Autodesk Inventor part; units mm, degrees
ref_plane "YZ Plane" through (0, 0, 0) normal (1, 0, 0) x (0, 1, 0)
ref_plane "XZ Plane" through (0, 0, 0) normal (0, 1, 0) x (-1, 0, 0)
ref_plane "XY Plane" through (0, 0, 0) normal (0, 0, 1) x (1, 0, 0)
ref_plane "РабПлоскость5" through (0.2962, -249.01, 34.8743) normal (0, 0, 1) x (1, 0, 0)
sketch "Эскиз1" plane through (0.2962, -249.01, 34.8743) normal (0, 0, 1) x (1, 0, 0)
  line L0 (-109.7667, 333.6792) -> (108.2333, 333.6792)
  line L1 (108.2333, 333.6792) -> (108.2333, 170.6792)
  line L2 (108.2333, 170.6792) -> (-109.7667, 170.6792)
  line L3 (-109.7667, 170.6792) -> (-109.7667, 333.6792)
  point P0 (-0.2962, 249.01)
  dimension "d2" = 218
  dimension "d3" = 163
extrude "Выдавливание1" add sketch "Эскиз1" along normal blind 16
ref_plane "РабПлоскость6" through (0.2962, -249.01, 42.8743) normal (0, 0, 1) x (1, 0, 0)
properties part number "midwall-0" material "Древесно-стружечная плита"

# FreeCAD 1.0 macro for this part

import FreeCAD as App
import Part
import Sketcher

V = App.Vector

doc = App.newDocument("Part")
params = doc.addObject("Spreadsheet::Sheet", "Params")
for row, (alias, value) in enumerate([
    ("sketch1_width", "218 mm"),
    ("sketch1_height", "163 mm"),
    ("pad1_length", "16 mm"),
], start=1):
    params.set(f"A{row}", alias)
    params.set(f"B{row}", "=" + value)
    params.setAlias(f"B{row}", alias)

body = doc.addObject("PartDesign::Body", "Body")

# Sketch on XY plane
sketch1 = body.newObject("Sketcher::SketchObject", "Sketch")
sketch1.AttachmentSupport = (doc.getObject("XY_Plane"), [""])
sketch1.MapMode = "FlatFace"
sketch1.AttachmentOffset = App.Placement(V(0, 0, 34.8743), App.Rotation())
sketch1.addGeometry([
    Part.LineSegment(V(108.5295, 84.6692, 0), V(-109.4705, 84.6692, 0)),
    Part.LineSegment(V(-109.4705, 84.6692, 0), V(-109.4705, -78.3308, 0)),
    Part.LineSegment(V(-109.4705, -78.3308, 0), V(108.5295, -78.3308, 0)),
    Part.LineSegment(V(108.5295, -78.3308, 0), V(108.5295, 84.6692, 0)),
], False)
sketch1.addConstraint([
    Sketcher.Constraint("Coincident", 0, 2, 1, 1),
    Sketcher.Constraint("Coincident", 1, 2, 2, 1),
    Sketcher.Constraint("Coincident", 2, 2, 3, 1),
    Sketcher.Constraint("Coincident", 3, 2, 0, 1),
    Sketcher.Constraint("Horizontal", 0),
    Sketcher.Constraint("Vertical", 1),
    Sketcher.Constraint("Horizontal", 2),
    Sketcher.Constraint("Vertical", 3),
    Sketcher.Constraint("DistanceX", 0, 2, 0, 1, 218.0),
    Sketcher.Constraint("DistanceY", 1, 2, 1, 1, 163.0),
    Sketcher.Constraint("DistanceX", 0, 2, -1, 1, 109.4705),
    Sketcher.Constraint("DistanceY", -1, 1, 0, 2, 84.6692),
])
sketch1.setExpression("Constraints[8]", "Params.sketch1_width")
sketch1.setExpression("Constraints[9]", "Params.sketch1_height")
pad1 = body.newObject("PartDesign::Pad", "Pad")
pad1.Profile = sketch1
pad1.setExpression("Length", "Params.pad1_length")

doc.recompute()
